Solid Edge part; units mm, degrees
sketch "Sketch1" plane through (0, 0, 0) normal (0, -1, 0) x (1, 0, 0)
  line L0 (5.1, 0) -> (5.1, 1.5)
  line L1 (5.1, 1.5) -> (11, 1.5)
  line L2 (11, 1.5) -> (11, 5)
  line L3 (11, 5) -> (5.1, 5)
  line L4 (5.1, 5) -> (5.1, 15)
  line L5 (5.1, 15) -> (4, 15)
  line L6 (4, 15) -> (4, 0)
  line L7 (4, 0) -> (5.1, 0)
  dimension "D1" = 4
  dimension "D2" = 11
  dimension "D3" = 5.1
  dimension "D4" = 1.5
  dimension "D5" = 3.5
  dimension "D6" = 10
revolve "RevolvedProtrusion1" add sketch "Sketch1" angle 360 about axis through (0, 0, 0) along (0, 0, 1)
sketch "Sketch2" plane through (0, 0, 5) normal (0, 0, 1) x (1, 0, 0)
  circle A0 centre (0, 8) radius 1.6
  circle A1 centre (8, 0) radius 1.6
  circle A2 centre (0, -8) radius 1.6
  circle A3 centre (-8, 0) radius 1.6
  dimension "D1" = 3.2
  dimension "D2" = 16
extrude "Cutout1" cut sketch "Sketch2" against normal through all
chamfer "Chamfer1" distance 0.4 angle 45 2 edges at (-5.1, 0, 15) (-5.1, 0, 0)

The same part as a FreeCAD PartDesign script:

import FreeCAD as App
import Part
import Sketcher

V = App.Vector
Q = App.Units.Quantity


def edges_at(feature, points):
    """Names of the edges that pass closest to the given points."""
    edges = feature.Shape.Edges
    near = lambda p: min(range(len(edges)), key=lambda i: edges[i].distToShape(Part.Vertex(*p))[0])
    return sorted({f"Edge{near(p) + 1}" for p in points})


def add_polygon(sketch, points):
    """Adds a closed chain of lines whose ends are joined by coincident constraints."""
    first, n = sketch.GeometryCount, len(points)
    for a, b in zip(points, points[1:] + points[:1]):
        sketch.addGeometry(Part.LineSegment(App.Vector(*a, 0), App.Vector(*b, 0)), False)
    for i in range(n):
        sketch.addConstraint(Sketcher.Constraint("Coincident", first + i, 2, first + (i + 1) % n, 1))

doc = App.newDocument("Part")
body = doc.addObject("PartDesign::Body", "Body")

sketch1 = doc.addObject("Sketcher::SketchObject", "Sketch")
body.addObject(sketch1)
sketch1.AttachmentSupport = (doc.XZ_Plane, [""])
sketch1.MapMode = "FlatFace"
add_polygon(sketch1, [(4, 0), (5.1, 0), (5.1, 1.5), (11, 1.5), (11, 5), (5.1, 5), (5.1, 15), (4, 15)])
sketch1.addConstraint([
    Sketcher.Constraint("Horizontal", 0),
    Sketcher.Constraint("Vertical", 1),
    Sketcher.Constraint("Horizontal", 2),
    Sketcher.Constraint("Vertical", 3),
    Sketcher.Constraint("Horizontal", 4),
    Sketcher.Constraint("Vertical", 5),
    Sketcher.Constraint("Horizontal", 6),
    Sketcher.Constraint("Vertical", 7),
    Sketcher.Constraint("PointOnObject", 0, 2, -1),
    Sketcher.Constraint("Vertical", 1, 2, 4, 2),
    Sketcher.Constraint("DistanceX", -1, 1, 2, 2, Q("11 mm")),
    Sketcher.Constraint("DistanceX", -1, 1, 0, 2, Q("5.1 mm")),
    Sketcher.Constraint("DistanceY", 5, 1, 5, 2, Q("10 mm")),
    Sketcher.Constraint("DistanceY", 7, 2, 7, 1, Q("15 mm")),
    Sketcher.Constraint("DistanceX", 0, 1, 0, 2, Q("1.1 mm")),
    Sketcher.Constraint("DistanceY", 1, 1, 1, 2, Q("1.5 mm")),
])
revolution = doc.addObject("PartDesign::Revolution", "Revolution")
body.addObject(revolution)
revolution.Profile = sketch1
revolution.ReferenceAxis = (sketch1, ["V_Axis"])
revolution.Angle = 360

sketch2 = doc.addObject("Sketcher::SketchObject", "Sketch001")
body.addObject(sketch2)
sketch2.AttachmentSupport = (doc.XY_Plane, [""])
sketch2.MapMode = "FlatFace"
sketch2.AttachmentOffset = App.Placement(V(0, 0, 5), App.Rotation())
sketch2.addGeometry([
    Part.Circle(V(0, 8, 0), V(0, 0, 1), 1.6),
    Part.Circle(V(8, 0, 0), V(0, 0, 1), 1.6),
    Part.Circle(V(0, -8, 0), V(0, 0, 1), 1.6),
    Part.Circle(V(-8, 0, 0), V(0, 0, 1), 1.6),
], False)
sketch2.addConstraint([
    Sketcher.Constraint("Equal", 0, 1),
    Sketcher.Constraint("Equal", 1, 2),
    Sketcher.Constraint("Equal", 2, 3),
    Sketcher.Constraint("Symmetric", 0, 3, 2, 3, -1, 1),
    Sketcher.Constraint("Symmetric", 1, 3, 3, 3, -1, 1),
    Sketcher.Constraint("PointOnObject", 0, 3, -2),
    Sketcher.Constraint("PointOnObject", 1, 3, -1),
    Sketcher.Constraint("Diameter", 0, Q("3.2 mm")),
    Sketcher.Constraint("DistanceY", -1, 1, 0, 3, Q("8 mm")),
    Sketcher.Constraint("DistanceX", -1, 1, 1, 3, Q("8 mm")),
])
pocket1 = doc.addObject("PartDesign::Pocket", "Pocket")
body.addObject(pocket1)
pocket1.Profile = sketch2
pocket1.Type = "ThroughAll"
doc.recompute()

chamfer = doc.addObject("PartDesign::Chamfer", "Chamfer")
body.addObject(chamfer)
chamfer.Base = (pocket1, edges_at(pocket1, [(-5.1, 0, 15), (-5.1, 0, 0)]))
chamfer.Size = 0.4

doc.recompute()
